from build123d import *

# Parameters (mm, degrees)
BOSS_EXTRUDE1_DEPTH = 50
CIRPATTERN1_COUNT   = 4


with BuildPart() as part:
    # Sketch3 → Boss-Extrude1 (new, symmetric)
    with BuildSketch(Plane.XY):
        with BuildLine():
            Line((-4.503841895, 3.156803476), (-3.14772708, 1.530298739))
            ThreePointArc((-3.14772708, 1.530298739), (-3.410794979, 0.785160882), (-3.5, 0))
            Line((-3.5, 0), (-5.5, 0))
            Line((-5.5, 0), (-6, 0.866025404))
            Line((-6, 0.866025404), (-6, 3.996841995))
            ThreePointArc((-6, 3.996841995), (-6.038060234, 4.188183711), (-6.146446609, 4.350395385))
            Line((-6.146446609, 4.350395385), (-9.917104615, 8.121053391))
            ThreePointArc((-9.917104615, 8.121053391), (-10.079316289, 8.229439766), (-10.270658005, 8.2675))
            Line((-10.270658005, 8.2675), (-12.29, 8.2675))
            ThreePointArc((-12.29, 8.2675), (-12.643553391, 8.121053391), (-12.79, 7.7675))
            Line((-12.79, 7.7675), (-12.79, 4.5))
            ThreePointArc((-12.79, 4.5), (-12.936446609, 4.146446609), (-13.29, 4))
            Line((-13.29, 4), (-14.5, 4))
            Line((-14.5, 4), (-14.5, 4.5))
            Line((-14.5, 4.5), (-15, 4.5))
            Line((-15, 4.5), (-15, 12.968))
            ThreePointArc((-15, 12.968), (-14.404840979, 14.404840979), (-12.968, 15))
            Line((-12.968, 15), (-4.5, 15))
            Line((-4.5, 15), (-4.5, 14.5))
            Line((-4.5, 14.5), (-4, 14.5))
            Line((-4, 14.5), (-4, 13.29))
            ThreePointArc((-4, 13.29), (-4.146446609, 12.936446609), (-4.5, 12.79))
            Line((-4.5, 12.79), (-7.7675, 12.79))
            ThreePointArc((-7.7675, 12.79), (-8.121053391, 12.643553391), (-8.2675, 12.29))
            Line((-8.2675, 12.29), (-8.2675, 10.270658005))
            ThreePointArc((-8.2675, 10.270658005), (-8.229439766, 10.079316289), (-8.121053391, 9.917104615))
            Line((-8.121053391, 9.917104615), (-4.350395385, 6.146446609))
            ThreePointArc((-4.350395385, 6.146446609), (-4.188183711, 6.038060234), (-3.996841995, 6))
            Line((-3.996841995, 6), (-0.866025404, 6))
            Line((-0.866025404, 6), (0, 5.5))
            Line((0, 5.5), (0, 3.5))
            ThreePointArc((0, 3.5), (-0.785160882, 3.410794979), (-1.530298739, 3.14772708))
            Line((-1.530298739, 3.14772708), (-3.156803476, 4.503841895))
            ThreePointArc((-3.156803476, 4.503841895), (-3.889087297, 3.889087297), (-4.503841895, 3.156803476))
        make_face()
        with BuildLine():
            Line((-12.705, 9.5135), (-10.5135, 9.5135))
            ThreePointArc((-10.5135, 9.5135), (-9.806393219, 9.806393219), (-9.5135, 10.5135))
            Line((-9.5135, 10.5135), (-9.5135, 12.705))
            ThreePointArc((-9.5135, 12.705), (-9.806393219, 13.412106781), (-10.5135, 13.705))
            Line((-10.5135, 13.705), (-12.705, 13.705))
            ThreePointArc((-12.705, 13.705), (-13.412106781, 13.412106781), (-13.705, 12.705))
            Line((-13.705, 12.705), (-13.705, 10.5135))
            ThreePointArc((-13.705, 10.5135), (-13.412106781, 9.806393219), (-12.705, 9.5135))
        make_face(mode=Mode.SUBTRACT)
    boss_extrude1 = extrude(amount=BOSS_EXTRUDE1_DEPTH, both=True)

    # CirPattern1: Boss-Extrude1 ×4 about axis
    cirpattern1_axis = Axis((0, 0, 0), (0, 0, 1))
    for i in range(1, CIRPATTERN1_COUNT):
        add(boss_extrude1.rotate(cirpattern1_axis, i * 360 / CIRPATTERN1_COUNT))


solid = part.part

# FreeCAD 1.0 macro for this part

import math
import FreeCAD as App
import Part
import Sketcher
Q = App.Units.Quantity

doc = App.newDocument("Part")
body = doc.addObject("PartDesign::Body", "Body")

sketch1 = body.newObject("Sketcher::SketchObject", "Sketch")
sketch1.AttachmentSupport = (doc.getObject("XY_Plane"), [""])
sketch1.MapMode = "FlatFace"
sketch1.addGeometry(Part.LineSegment(App.Vector(-3.15, 1.53, 0), App.Vector(-4.5, 3.16, 0)), False)
sketch1.addGeometry(Part.ArcOfCircle(Part.Circle(App.Vector(0, 0, 0), App.Vector(0, 0, 1), 5.5), math.radians(125.03), math.radians(144.97)), False)
sketch1.addGeometry(Part.LineSegment(App.Vector(-3.16, 4.5, 0), App.Vector(-1.53, 3.15, 0)), False)
sketch1.addGeometry(Part.ArcOfCircle(Part.Circle(App.Vector(0, 0, 0), App.Vector(0, 0, 1), 3.5), math.radians(90), math.radians(116)), False)
sketch1.addGeometry(Part.LineSegment(App.Vector(0, 3.5, 0), App.Vector(0, 5.5, 0)), False)
sketch1.addGeometry(Part.LineSegment(App.Vector(0, 5.5, 0), App.Vector(-0.87, 6, 0)), False)
sketch1.addGeometry(Part.LineSegment(App.Vector(-0.87, 6, 0), App.Vector(-4, 6, 0)), False)
sketch1.addGeometry(Part.ArcOfCircle(Part.Circle(App.Vector(-4, 6.5, 0), App.Vector(0, 0, 1), 0.5), math.radians(-135), math.radians(-90)), False)
sketch1.addGeometry(Part.LineSegment(App.Vector(-4.35, 6.15, 0), App.Vector(-8.12, 9.92, 0)), False)
sketch1.addGeometry(Part.ArcOfCircle(Part.Circle(App.Vector(-7.77, 10.27, 0), App.Vector(0, 0, 1), 0.5), math.radians(-180), math.radians(-135)), False)
sketch1.addGeometry(Part.LineSegment(App.Vector(-8.27, 10.27, 0), App.Vector(-8.27, 12.29, 0)), False)
sketch1.addGeometry(Part.ArcOfCircle(Part.Circle(App.Vector(-7.77, 12.29, 0), App.Vector(0, 0, 1), 0.5), math.radians(90), math.radians(180)), False)
sketch1.addGeometry(Part.LineSegment(App.Vector(-7.77, 12.79, 0), App.Vector(-4.5, 12.79, 0)), False)
sketch1.addGeometry(Part.ArcOfCircle(Part.Circle(App.Vector(-4.5, 13.29, 0), App.Vector(0, 0, 1), 0.5), math.radians(-90), math.radians(0)), False)
sketch1.addGeometry(Part.LineSegment(App.Vector(-4, 13.29, 0), App.Vector(-4, 14.5, 0)), False)
sketch1.addGeometry(Part.LineSegment(App.Vector(-4, 14.5, 0), App.Vector(-4.5, 14.5, 0)), False)
sketch1.addGeometry(Part.LineSegment(App.Vector(-4.5, 14.5, 0), App.Vector(-4.5, 15, 0)), False)
sketch1.addGeometry(Part.LineSegment(App.Vector(-4.5, 15, 0), App.Vector(-12.97, 15, 0)), False)
sketch1.addGeometry(Part.ArcOfCircle(Part.Circle(App.Vector(-12.97, 12.97, 0), App.Vector(0, 0, 1), 2.03), math.radians(90), math.radians(180)), False)
sketch1.addGeometry(Part.LineSegment(App.Vector(-15, 12.97, 0), App.Vector(-15, 4.5, 0)), False)
sketch1.addGeometry(Part.LineSegment(App.Vector(-15, 4.5, 0), App.Vector(-14.5, 4.5, 0)), False)
sketch1.addGeometry(Part.LineSegment(App.Vector(-14.5, 4.5, 0), App.Vector(-14.5, 4, 0)), False)
sketch1.addGeometry(Part.LineSegment(App.Vector(-14.5, 4, 0), App.Vector(-13.29, 4, 0)), False)
sketch1.addGeometry(Part.ArcOfCircle(Part.Circle(App.Vector(-13.29, 4.5, 0), App.Vector(0, 0, 1), 0.5), math.radians(-90), math.radians(0)), False)
sketch1.addGeometry(Part.LineSegment(App.Vector(-12.79, 4.5, 0), App.Vector(-12.79, 7.77, 0)), False)
sketch1.addGeometry(Part.ArcOfCircle(Part.Circle(App.Vector(-12.29, 7.77, 0), App.Vector(0, 0, 1), 0.5), math.radians(90), math.radians(180)), False)
sketch1.addGeometry(Part.LineSegment(App.Vector(-12.29, 8.27, 0), App.Vector(-10.27, 8.27, 0)), False)
sketch1.addGeometry(Part.ArcOfCircle(Part.Circle(App.Vector(-10.27, 7.77, 0), App.Vector(0, 0, 1), 0.5), math.radians(45), math.radians(90)), False)
sketch1.addGeometry(Part.LineSegment(App.Vector(-9.92, 8.12, 0), App.Vector(-6.15, 4.35, 0)), False)
sketch1.addGeometry(Part.ArcOfCircle(Part.Circle(App.Vector(-6.5, 4, 0), App.Vector(0, 0, 1), 0.5), math.radians(0), math.radians(45)), False)
sketch1.addGeometry(Part.LineSegment(App.Vector(-6, 4, 0), App.Vector(-6, 0.87, 0)), False)
sketch1.addGeometry(Part.LineSegment(App.Vector(-6, 0.87, 0), App.Vector(-5.5, 0, 0)), False)
sketch1.addGeometry(Part.LineSegment(App.Vector(-5.5, 0, 0), App.Vector(-3.5, 0, 0)), False)
sketch1.addGeometry(Part.ArcOfCircle(Part.Circle(App.Vector(0, 0, 0), App.Vector(0, 0, 1), 3.5), math.radians(154), math.radians(180)), False)
sketch1.addGeometry(Part.ArcOfCircle(Part.Circle(App.Vector(-12.7, 10.51, 0), App.Vector(0, 0, 1), 1), math.radians(-180), math.radians(-90)), False)
sketch1.addGeometry(Part.LineSegment(App.Vector(-13.71, 10.51, 0), App.Vector(-13.71, 12.71, 0)), False)
sketch1.addGeometry(Part.ArcOfCircle(Part.Circle(App.Vector(-12.7, 12.7, 0), App.Vector(0, 0, 1), 1), math.radians(90), math.radians(180)), False)
sketch1.addGeometry(Part.LineSegment(App.Vector(-12.71, 13.71, 0), App.Vector(-10.51, 13.71, 0)), False)
sketch1.addGeometry(Part.ArcOfCircle(Part.Circle(App.Vector(-10.51, 12.7, 0), App.Vector(0, 0, 1), 1), math.radians(0), math.radians(90)), False)
sketch1.addGeometry(Part.LineSegment(App.Vector(-9.51, 12.71, 0), App.Vector(-9.51, 10.51, 0)), False)
sketch1.addGeometry(Part.ArcOfCircle(Part.Circle(App.Vector(-10.51, 10.51, 0), App.Vector(0, 0, 1), 1), math.radians(-90), math.radians(0)), False)
sketch1.addGeometry(Part.LineSegment(App.Vector(-10.51, 9.51, 0), App.Vector(-12.71, 9.51, 0)), False)
sketch1.addConstraint(Sketcher.Constraint("Coincident", 0, 2, 1, 2))
sketch1.addConstraint(Sketcher.Constraint("Coincident", 1, 1, 2, 1))
sketch1.addConstraint(Sketcher.Constraint("Coincident", 2, 2, 3, 2))
sketch1.addConstraint(Sketcher.Constraint("Coincident", 3, 1, 4, 1))
sketch1.addConstraint(Sketcher.Constraint("Coincident", 4, 2, 5, 1))
sketch1.addConstraint(Sketcher.Constraint("Coincident", 5, 2, 6, 1))
sketch1.addConstraint(Sketcher.Constraint("Tangent", 6, 2, 7, 2))
sketch1.addConstraint(Sketcher.Constraint("Tangent", 7, 1, 8, 1))
sketch1.addConstraint(Sketcher.Constraint("Tangent", 8, 2, 9, 2))
sketch1.addConstraint(Sketcher.Constraint("Tangent", 9, 1, 10, 1))
sketch1.addConstraint(Sketcher.Constraint("Tangent", 10, 2, 11, 2))
sketch1.addConstraint(Sketcher.Constraint("Tangent", 11, 1, 12, 1))
sketch1.addConstraint(Sketcher.Constraint("Tangent", 12, 2, 13, 1))
sketch1.addConstraint(Sketcher.Constraint("Tangent", 13, 2, 14, 1))
sketch1.addConstraint(Sketcher.Constraint("Coincident", 14, 2, 15, 1))
sketch1.addConstraint(Sketcher.Constraint("Coincident", 15, 2, 16, 1))
sketch1.addConstraint(Sketcher.Constraint("Coincident", 16, 2, 17, 1))
sketch1.addConstraint(Sketcher.Constraint("Tangent", 17, 2, 18, 1))
sketch1.addConstraint(Sketcher.Constraint("Tangent", 18, 2, 19, 1))
sketch1.addConstraint(Sketcher.Constraint("Coincident", 19, 2, 20, 1))
sketch1.addConstraint(Sketcher.Constraint("Coincident", 20, 2, 21, 1))
sketch1.addConstraint(Sketcher.Constraint("Coincident", 21, 2, 22, 1))
sketch1.addConstraint(Sketcher.Constraint("Tangent", 22, 2, 23, 1))
sketch1.addConstraint(Sketcher.Constraint("Tangent", 23, 2, 24, 1))
sketch1.addConstraint(Sketcher.Constraint("Tangent", 24, 2, 25, 2))
sketch1.addConstraint(Sketcher.Constraint("Tangent", 25, 1, 26, 1))
sketch1.addConstraint(Sketcher.Constraint("Tangent", 26, 2, 27, 2))
sketch1.addConstraint(Sketcher.Constraint("Tangent", 27, 1, 28, 1))
sketch1.addConstraint(Sketcher.Constraint("Tangent", 28, 2, 29, 2))
sketch1.addConstraint(Sketcher.Constraint("Tangent", 29, 1, 30, 1))
sketch1.addConstraint(Sketcher.Constraint("Coincident", 30, 2, 31, 1))
sketch1.addConstraint(Sketcher.Constraint("Coincident", 31, 2, 32, 1))
sketch1.addConstraint(Sketcher.Constraint("Coincident", 32, 2, 33, 2))
sketch1.addConstraint(Sketcher.Constraint("Coincident", 33, 1, 0, 1))
sketch1.addConstraint(Sketcher.Constraint("Tangent", 34, 1, 35, 1))
sketch1.addConstraint(Sketcher.Constraint("Tangent", 35, 2, 36, 2))
sketch1.addConstraint(Sketcher.Constraint("Tangent", 36, 1, 37, 1))
sketch1.addConstraint(Sketcher.Constraint("Tangent", 37, 2, 38, 2))
sketch1.addConstraint(Sketcher.Constraint("Tangent", 38, 1, 39, 1))
sketch1.addConstraint(Sketcher.Constraint("Tangent", 39, 2, 40, 2))
sketch1.addConstraint(Sketcher.Constraint("Tangent", 40, 1, 41, 1))
sketch1.addConstraint(Sketcher.Constraint("Tangent", 41, 2, 34, 2))
sketch1.addConstraint(Sketcher.Constraint("Vertical", 4))
sketch1.addConstraint(Sketcher.Constraint("Horizontal", 6))
sketch1.addConstraint(Sketcher.Constraint("Vertical", 10))
sketch1.addConstraint(Sketcher.Constraint("Horizontal", 12))
sketch1.addConstraint(Sketcher.Constraint("Vertical", 14))
sketch1.addConstraint(Sketcher.Constraint("Horizontal", 15))
sketch1.addConstraint(Sketcher.Constraint("Vertical", 16))
sketch1.addConstraint(Sketcher.Constraint("Horizontal", 17))
sketch1.addConstraint(Sketcher.Constraint("Vertical", 19))
sketch1.addConstraint(Sketcher.Constraint("Horizontal", 20))
sketch1.addConstraint(Sketcher.Constraint("Vertical", 21))
sketch1.addConstraint(Sketcher.Constraint("Horizontal", 22))
sketch1.addConstraint(Sketcher.Constraint("Vertical", 24))
sketch1.addConstraint(Sketcher.Constraint("Horizontal", 26))
sketch1.addConstraint(Sketcher.Constraint("Vertical", 30))
sketch1.addConstraint(Sketcher.Constraint("Horizontal", 32))
sketch1.addConstraint(Sketcher.Constraint("Vertical", 35))
sketch1.addConstraint(Sketcher.Constraint("Horizontal", 37))
sketch1.addConstraint(Sketcher.Constraint("Vertical", 39))
sketch1.addConstraint(Sketcher.Constraint("Horizontal", 41))
sketch1.addConstraint(Sketcher.Constraint("Coincident", 1, 3, -1, 1))
sketch1.addConstraint(Sketcher.Constraint("Coincident", 3, 3, -1, 1))
sketch1.addConstraint(Sketcher.Constraint("Coincident", 33, 3, -1, 1))
sketch1.addConstraint(Sketcher.Constraint("Equal", 7, 9))
sketch1.addConstraint(Sketcher.Constraint("Equal", 9, 11))
sketch1.addConstraint(Sketcher.Constraint("Equal", 11, 13))
sketch1.addConstraint(Sketcher.Constraint("Equal", 13, 23))
sketch1.addConstraint(Sketcher.Constraint("Equal", 23, 25))
sketch1.addConstraint(Sketcher.Constraint("Equal", 25, 27))
sketch1.addConstraint(Sketcher.Constraint("Equal", 27, 29))
sketch1.addConstraint(Sketcher.Constraint("Equal", 3, 33))
sketch1.addConstraint(Sketcher.Constraint("Equal", 34, 36))
sketch1.addConstraint(Sketcher.Constraint("Equal", 36, 38))
sketch1.addConstraint(Sketcher.Constraint("Equal", 38, 40))
sketch1.addConstraint(Sketcher.Constraint("PointOnObject", 3, 1, -2))
sketch1.addConstraint(Sketcher.Constraint("PointOnObject", 31, 2, -1))
sketch1.addConstraint(Sketcher.Constraint("Parallel", 8, 28))
sketch1.addConstraint(Sketcher.Constraint("Horizontal", 23, 3, 19, 2))
sketch1.addConstraint(Sketcher.Constraint("Vertical", 12, 2, 15, 2))
sketch1.addConstraint(Sketcher.Constraint("Equal", 15, 20))
sketch1.addConstraint(Sketcher.Constraint("Equal", 32, 4))
sketch1.addConstraint(Sketcher.Constraint("Equal", 26, 10))
sketch1.addConstraint(Sketcher.Constraint("Equal", 22, 14))
sketch1.addConstraint(Sketcher.Constraint("Equal", 20, 16))
sketch1.addConstraint(Sketcher.Constraint("Equal", 17, 19))
sketch1.addConstraint(Sketcher.Constraint("Equal", 12, 24))
sketch1.addConstraint(Sketcher.Constraint("Equal", 6, 30))
sketch1.addConstraint(Sketcher.Constraint("Equal", 41, 35))
sketch1.addConstraint(Sketcher.Constraint("Equal", 0, 2))
sketch1.addConstraint(Sketcher.Constraint("Equal", 8, 28))
sketch1.addConstraint(Sketcher.Constraint("Equal", 5, 31))
sketch1.addConstraint(Sketcher.Constraint("Radius", 34, Q("1 mm")))
sketch1.addConstraint(Sketcher.Constraint("Radius", 1, Q("5.5 mm")))
sketch1.addConstraint(Sketcher.Constraint("Radius", 3, Q("3.5 mm")))
sketch1.addConstraint(Sketcher.Constraint("Radius", 7, Q("0.5 mm")))
sketch1.addConstraint(Sketcher.Constraint("DistanceX", 32, 1, 32, 2, Q("2 mm")))
sketch1.addConstraint(Sketcher.Constraint("Angle", 5, Q("150 deg")))
sketch1.addConstraint(Sketcher.Constraint("Angle", 8, Q("135 deg")))
sketch1.addConstraint(Sketcher.Constraint("Distance", 5, Q("1 mm")))
sketch1.addConstraint(Sketcher.Constraint("DistanceX", 13, 2, -1, 1, Q("4 mm")))
sketch1.addConstraint(Sketcher.Constraint("DistanceY", -1, 1, 16, 2, Q("15 mm")))
sketch1.addConstraint(Sketcher.Constraint("Radius", 18, Q("2.032 mm")))
sketch1.addConstraint(Sketcher.Constraint("DistanceX", 22, 1, 22, 2, Q("1.21 mm")))
sketch1.addConstraint(Sketcher.Constraint("Angle", 0, Q("129.82 deg")))
sketch1.addConstraint(Sketcher.Constraint("Angle", 2, Q("-39.82 deg")))
sketch1.addConstraint(Sketcher.Constraint("DistanceX", 12, 1, 12, 2, Q("3.2675 mm")))
sketch1.addConstraint(Sketcher.Constraint("DistanceX", 37, 1, 37, 2, Q("2.1915 mm")))
sketch1.addConstraint(Sketcher.Constraint("DistanceX", 34, 3, -1, 1, Q("12.705 mm")))
sketch1.addConstraint(Sketcher.Constraint("DistanceY", -1, 1, 36, 3, Q("12.705 mm")))
sketch1.addConstraint(Sketcher.Constraint("DistanceX", 0, 2, 7, 3, Q("0.507 mm")))
sketch1.addConstraint(Sketcher.Constraint("DistanceX", 26, 1, 26, 2, Q("2.019342 mm")))
pad1 = body.newObject("PartDesign::Pad", "Pad")
pad1.Profile = sketch1
pad1.Length = 100
pad1.Midplane = True
doc.recompute()

polarpattern = body.newObject("PartDesign::PolarPattern", "PolarPattern")
polarpattern.Originals = [pad1]
polarpattern.Axis = (doc.getObject("Z_Axis"), [""])
polarpattern.Angle = 360
polarpattern.Occurrences = 4
body.Tip = polarpattern

doc.recompute()
